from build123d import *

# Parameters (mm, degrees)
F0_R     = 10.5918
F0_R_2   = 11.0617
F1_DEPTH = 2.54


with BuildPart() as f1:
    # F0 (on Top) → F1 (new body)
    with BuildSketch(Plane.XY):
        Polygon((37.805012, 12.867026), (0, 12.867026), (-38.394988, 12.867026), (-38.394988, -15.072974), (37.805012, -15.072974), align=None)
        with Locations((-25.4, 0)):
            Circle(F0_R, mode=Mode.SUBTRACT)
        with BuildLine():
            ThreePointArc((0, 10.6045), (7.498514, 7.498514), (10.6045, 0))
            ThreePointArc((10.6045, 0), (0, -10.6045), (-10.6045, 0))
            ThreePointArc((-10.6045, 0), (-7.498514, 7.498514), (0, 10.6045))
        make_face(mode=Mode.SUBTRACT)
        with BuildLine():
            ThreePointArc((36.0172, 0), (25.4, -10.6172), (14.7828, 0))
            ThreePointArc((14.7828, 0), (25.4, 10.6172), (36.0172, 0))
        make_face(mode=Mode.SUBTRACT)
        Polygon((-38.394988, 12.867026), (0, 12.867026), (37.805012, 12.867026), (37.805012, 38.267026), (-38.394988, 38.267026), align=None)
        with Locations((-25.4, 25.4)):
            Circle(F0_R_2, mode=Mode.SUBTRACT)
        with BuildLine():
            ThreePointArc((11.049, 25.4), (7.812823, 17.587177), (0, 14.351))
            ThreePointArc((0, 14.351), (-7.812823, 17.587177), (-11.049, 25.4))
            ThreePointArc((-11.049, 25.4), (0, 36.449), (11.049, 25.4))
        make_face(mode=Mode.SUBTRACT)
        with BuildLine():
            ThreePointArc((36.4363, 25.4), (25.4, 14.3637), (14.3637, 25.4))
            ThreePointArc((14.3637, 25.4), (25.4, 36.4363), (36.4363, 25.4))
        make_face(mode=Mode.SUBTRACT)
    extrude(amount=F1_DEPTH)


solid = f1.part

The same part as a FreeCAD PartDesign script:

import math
import FreeCAD as App
import Part
import Sketcher
from FreeCAD import Vector
Q = App.Units.Quantity


def add_polygon(sketch, points):
    """Adds a closed chain of lines whose ends are joined by coincident constraints."""
    first, n = sketch.GeometryCount, len(points)
    for a, b in zip(points, points[1:] + points[:1]):
        sketch.addGeometry(Part.LineSegment(App.Vector(*a, 0), App.Vector(*b, 0)), False)
    for i in range(n):
        sketch.addConstraint(Sketcher.Constraint("Coincident", first + i, 2, first + (i + 1) % n, 1))

doc = App.newDocument("Part")
body = doc.addObject("PartDesign::Body", "Body")

# Sketch on XY plane
sketch1 = body.newObject("Sketcher::SketchObject", "Sketch")
sketch1.AttachmentSupport = (doc.getObject("XY_Plane"), [""])
sketch1.MapMode = "FlatFace"
add_polygon(sketch1, [(37.805012, -15.072974), (37.805012, 38.267026), (-38.394988, 38.267026), (-38.394988, -15.072974)])  # lines 0-3
sketch1.addGeometry(Part.Circle(Vector(-25.4, 0, 0), Vector(0, 0, 1), 10.5918), False)  # 4
sketch1.addGeometry(Part.ArcOfCircle(Part.Circle(Vector(0, 0, 0), Vector(0, 0, 1), 10.6045), math.radians(89.999997), math.radians(180.000003)), False)  # 5
sketch1.addGeometry(Part.ArcOfCircle(Part.Circle(Vector(0, 0, 0), Vector(0, 0, 1), 10.6045), math.radians(-0.000003), math.radians(90.000003)), False)  # 6
sketch1.addGeometry(Part.ArcOfCircle(Part.Circle(Vector(0, 0, 0), Vector(0, 0, 1), 10.6045), math.radians(180), math.radians(360)), False)  # 7
sketch1.addGeometry(Part.Circle(Vector(25.4, 0, 0), Vector(0, 0, 1), 10.6172), False)  # 8
sketch1.addGeometry(Part.Circle(Vector(-25.4, 25.4, 0), Vector(0, 0, 1), 11.0617), False)  # 9
sketch1.addGeometry(Part.ArcOfCircle(Part.Circle(Vector(0, 25.4, 0), Vector(0, 0, 1), 11.049), math.radians(0), math.radians(180)), False)  # 10
sketch1.addGeometry(Part.ArcOfCircle(Part.Circle(Vector(0.000001, 25.399999, 0), Vector(0, 0, 1), 11.048999), math.radians(-90.000003), math.radians(0.000003)), False)  # 11
sketch1.addGeometry(Part.ArcOfCircle(Part.Circle(Vector(-0.000001, 25.399999, 0), Vector(0, 0, 1), 11.048999), math.radians(179.999997), math.radians(270.000003)), False)  # 12
sketch1.addGeometry(Part.Circle(Vector(25.4, 25.4, 0), Vector(0, 0, 1), 11.0363), False)  # 13
sketch1.addConstraint([
    Sketcher.Constraint("Tangent", 5, 1, 6, 2),
    Sketcher.Constraint("Tangent", 6, 1, 7, 2),
    Sketcher.Constraint("Tangent", 7, 1, 5, 2),
    Sketcher.Constraint("Tangent", 10, 1, 11, 2),
    Sketcher.Constraint("Tangent", 11, 1, 12, 2),
    Sketcher.Constraint("Tangent", 12, 1, 10, 2),
    Sketcher.Constraint("Vertical", 0),
    Sketcher.Constraint("Horizontal", 1),
    Sketcher.Constraint("Vertical", 2),
    Sketcher.Constraint("Horizontal", 3),
    Sketcher.Constraint("Coincident", 5, 3, -1, 1),
    Sketcher.Constraint("Symmetric", 4, 3, 8, 3, -1, 1),
    Sketcher.Constraint("Symmetric", 9, 3, 13, 3, -2),
    Sketcher.Constraint("Symmetric", 10, 1, 12, 1, -2),
    Sketcher.Constraint("PointOnObject", 4, 3, -1),
    Sketcher.Constraint("PointOnObject", 5, 1, -2),
    Sketcher.Constraint("PointOnObject", 6, 1, -1),
    Sketcher.Constraint("PointOnObject", 7, 1, -1),
    Sketcher.Constraint("PointOnObject", 11, 1, -2),
    Sketcher.Constraint("Horizontal", 9, 3, 10, 3),
    Sketcher.Constraint("Horizontal", 13, 3, 10, 1),
    Sketcher.Constraint("Vertical", 4, 3, 9, 3),
    Sketcher.Constraint("DistanceX", 1, 2, 1, 1, Q("3 in")),
    Sketcher.Constraint("Diameter", 4, Q("0.834 in")),
    Sketcher.Constraint("Diameter", 8, Q("0.836 in")),
    Sketcher.Constraint("Diameter", 9, Q("0.871 in")),
    Sketcher.Constraint("Diameter", 13, Q("0.869 in")),
    Sketcher.Constraint("DistanceY", 0, 1, 0, 2, Q("2.1 in")),
    Sketcher.Constraint("DistanceX", 4, 3, -1, 1, Q("1 in")),
    Sketcher.Constraint("DistanceY", -1, 1, 9, 3, Q("1 in")),
    Sketcher.Constraint("Radius", 10, Q("0.435 in")),
    Sketcher.Constraint("Radius", 5, Q("0.4175 in")),
    Sketcher.Constraint("DistanceX", -1, 1, 0, 2, 37.805012),
    Sketcher.Constraint("DistanceY", -1, 1, 0, 2, 38.267026),
])
pad1 = body.newObject("PartDesign::Pad", "Pad")
pad1.Profile = sketch1
pad1.Length = Q("0.1 in")

doc.recompute()
